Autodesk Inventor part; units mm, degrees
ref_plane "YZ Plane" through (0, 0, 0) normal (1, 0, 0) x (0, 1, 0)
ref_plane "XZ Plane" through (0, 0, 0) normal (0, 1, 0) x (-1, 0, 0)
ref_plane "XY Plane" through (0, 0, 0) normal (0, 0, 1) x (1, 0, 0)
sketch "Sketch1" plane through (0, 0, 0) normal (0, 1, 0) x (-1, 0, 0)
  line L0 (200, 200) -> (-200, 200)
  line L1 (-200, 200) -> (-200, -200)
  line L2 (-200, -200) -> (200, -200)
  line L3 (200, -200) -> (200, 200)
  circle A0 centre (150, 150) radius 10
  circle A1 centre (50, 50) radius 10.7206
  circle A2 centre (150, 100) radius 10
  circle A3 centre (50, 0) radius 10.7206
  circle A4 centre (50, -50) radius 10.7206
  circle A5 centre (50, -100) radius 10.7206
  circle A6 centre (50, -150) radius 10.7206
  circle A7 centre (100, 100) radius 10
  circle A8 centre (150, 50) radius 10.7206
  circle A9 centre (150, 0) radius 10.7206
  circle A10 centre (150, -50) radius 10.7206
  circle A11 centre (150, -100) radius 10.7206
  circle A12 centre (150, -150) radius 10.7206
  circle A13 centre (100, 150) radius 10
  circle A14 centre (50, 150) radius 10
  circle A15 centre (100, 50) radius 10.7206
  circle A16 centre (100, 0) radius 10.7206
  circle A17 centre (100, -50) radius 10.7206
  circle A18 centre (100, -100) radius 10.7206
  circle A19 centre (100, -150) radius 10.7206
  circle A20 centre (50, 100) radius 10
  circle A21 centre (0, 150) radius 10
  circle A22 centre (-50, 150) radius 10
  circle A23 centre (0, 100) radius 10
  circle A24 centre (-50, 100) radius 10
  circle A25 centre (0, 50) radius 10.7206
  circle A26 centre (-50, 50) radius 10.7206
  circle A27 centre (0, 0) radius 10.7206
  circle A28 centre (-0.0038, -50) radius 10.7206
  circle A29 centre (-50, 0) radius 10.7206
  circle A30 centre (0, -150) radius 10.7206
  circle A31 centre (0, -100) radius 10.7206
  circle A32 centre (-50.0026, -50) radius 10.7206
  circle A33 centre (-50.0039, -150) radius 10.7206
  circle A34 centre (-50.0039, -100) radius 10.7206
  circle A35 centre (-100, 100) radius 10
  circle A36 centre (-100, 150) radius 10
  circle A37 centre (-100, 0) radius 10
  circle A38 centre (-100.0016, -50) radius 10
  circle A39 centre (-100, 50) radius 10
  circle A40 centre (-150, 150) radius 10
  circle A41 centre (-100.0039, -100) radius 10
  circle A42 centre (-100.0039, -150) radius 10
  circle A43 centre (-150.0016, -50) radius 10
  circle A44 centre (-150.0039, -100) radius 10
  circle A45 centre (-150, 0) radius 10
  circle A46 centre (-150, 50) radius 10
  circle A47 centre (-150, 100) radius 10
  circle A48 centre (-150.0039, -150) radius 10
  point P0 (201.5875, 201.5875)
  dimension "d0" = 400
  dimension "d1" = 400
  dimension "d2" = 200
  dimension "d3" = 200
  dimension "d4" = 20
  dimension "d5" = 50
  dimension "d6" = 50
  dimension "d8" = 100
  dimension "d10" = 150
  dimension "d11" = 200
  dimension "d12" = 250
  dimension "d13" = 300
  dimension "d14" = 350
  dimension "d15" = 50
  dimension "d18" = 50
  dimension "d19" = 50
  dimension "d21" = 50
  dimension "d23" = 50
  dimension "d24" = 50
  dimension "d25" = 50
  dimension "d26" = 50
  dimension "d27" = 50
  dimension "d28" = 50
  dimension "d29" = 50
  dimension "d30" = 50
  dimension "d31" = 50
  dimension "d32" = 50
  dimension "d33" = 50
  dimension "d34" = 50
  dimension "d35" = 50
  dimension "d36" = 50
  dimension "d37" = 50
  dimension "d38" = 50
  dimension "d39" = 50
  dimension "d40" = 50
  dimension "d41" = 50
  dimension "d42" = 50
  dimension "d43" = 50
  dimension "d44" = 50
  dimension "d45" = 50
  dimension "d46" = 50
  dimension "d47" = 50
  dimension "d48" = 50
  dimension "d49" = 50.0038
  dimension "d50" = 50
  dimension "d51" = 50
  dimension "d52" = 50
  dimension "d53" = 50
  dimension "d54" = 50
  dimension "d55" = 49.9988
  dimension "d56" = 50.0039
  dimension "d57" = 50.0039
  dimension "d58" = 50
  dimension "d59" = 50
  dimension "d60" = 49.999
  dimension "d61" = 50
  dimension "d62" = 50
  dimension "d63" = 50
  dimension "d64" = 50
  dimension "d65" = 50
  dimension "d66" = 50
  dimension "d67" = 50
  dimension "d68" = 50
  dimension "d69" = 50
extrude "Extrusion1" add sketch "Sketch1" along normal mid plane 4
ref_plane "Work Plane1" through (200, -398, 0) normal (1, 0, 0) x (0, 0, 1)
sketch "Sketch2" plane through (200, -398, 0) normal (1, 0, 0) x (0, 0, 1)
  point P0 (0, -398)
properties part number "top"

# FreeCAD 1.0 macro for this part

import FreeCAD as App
import Part
import Sketcher

V = App.Vector


def add_polygon(sketch, points):
    """Adds a closed chain of lines whose ends are joined by coincident constraints."""
    first, n = sketch.GeometryCount, len(points)
    for a, b in zip(points, points[1:] + points[:1]):
        sketch.addGeometry(Part.LineSegment(App.Vector(*a, 0), App.Vector(*b, 0)), False)
    for i in range(n):
        sketch.addConstraint(Sketcher.Constraint("Coincident", first + i, 2, first + (i + 1) % n, 1))

doc = App.newDocument("Part")
params = doc.addObject("Spreadsheet::Sheet", "Params")
for row, (alias, value) in enumerate([
    ("sketch1_diameter", "20 mm"),
    ("sketch1_width", "400 mm"),
    ("pad1_length", "4 mm"),
], start=1):
    params.set(f"A{row}", alias)
    params.set(f"B{row}", "=" + value)
    params.setAlias(f"B{row}", alias)

body = doc.addObject("PartDesign::Body", "Body")

# Sketch on XZ plane
sketch1 = doc.addObject("Sketcher::SketchObject", "Sketch")
body.addObject(sketch1)
sketch1.AttachmentSupport = (doc.XZ_Plane, [""])
sketch1.MapMode = "FlatFace"
add_polygon(sketch1, [(-200, -200), (-200, 200), (200, 200), (200, -200)])  # lines 0-3
sketch1.addGeometry(Part.Circle(V(150, -150, 0), V(0, 0, 1), 10), False)  # 4
sketch1.addGeometry(Part.Circle(V(100, -150, 0), V(0, 0, 1), 10), False)  # 5
sketch1.addGeometry(Part.Circle(V(50, -150, 0), V(0, 0, 1), 11), False)  # 6
sketch1.addGeometry(Part.Circle(V(150, -100, 0), V(0, 0, 1), 10), False)  # 7
sketch1.addGeometry(Part.Circle(V(100, -100, 0), V(0, 0, 1), 10), False)  # 8
sketch1.addGeometry(Part.Circle(V(150, -50, 0), V(0, 0, 1), 10), False)  # 9
sketch1.addGeometry(Part.Circle(V(100, -50, 0), V(0, 0, 1), 10), False)  # 10
sketch1.addGeometry(Part.Circle(V(50, -100, 0), V(0, 0, 1), 11), False)  # 11
sketch1.addGeometry(Part.Circle(V(50, -50, 0), V(0, 0, 1), 11), False)  # 12
sketch1.addGeometry(Part.Circle(V(0, -50, 0), V(0, 0, 1), 11), False)  # 13
sketch1.addGeometry(Part.Circle(V(0, -150, 0), V(0, 0, 1), 11), False)  # 14
sketch1.addGeometry(Part.Circle(V(-50, -150, 0), V(0, 0, 1), 11), False)  # 15
sketch1.addGeometry(Part.Circle(V(-100, -150, 0), V(0, 0, 1), 11), False)  # 16
sketch1.addGeometry(Part.Circle(V(-150, -150, 0), V(0, 0, 1), 11), False)  # 17
sketch1.addGeometry(Part.Circle(V(0, -100, 0), V(0, 0, 1), 11), False)  # 18
sketch1.addGeometry(Part.Circle(V(-50, -100, 0), V(0, 0, 1), 11), False)  # 19
sketch1.addGeometry(Part.Circle(V(-50, -50, 0), V(0, 0, 1), 11), False)  # 20
sketch1.addGeometry(Part.Circle(V(-100, -100, 0), V(0, 0, 1), 11), False)  # 21
sketch1.addGeometry(Part.Circle(V(-150, -100, 0), V(0, 0, 1), 11), False)  # 22
sketch1.addGeometry(Part.Circle(V(-100, -50, 0), V(0, 0, 1), 11), False)  # 23
sketch1.addGeometry(Part.Circle(V(-150, -50, 0), V(0, 0, 1), 11), False)  # 24
sketch1.addGeometry(Part.Circle(V(150, 0, 0), V(0, 0, 1), 10), False)  # 25
sketch1.addGeometry(Part.Circle(V(150, 50, 0), V(0, 0, 1), 10), False)  # 26
sketch1.addGeometry(Part.Circle(V(100, 0, 0), V(0, 0, 1), 10), False)  # 27
sketch1.addGeometry(Part.Circle(V(50, 0, 0), V(0, 0, 1), 11), False)  # 28
sketch1.addGeometry(Part.Circle(V(100, 50, 0), V(0, 0, 1), 10), False)  # 29
sketch1.addGeometry(Part.Circle(V(50, 50, 0), V(0, 0, 1), 11), False)  # 30
sketch1.addGeometry(Part.Circle(V(150, 100, 0), V(0, 0, 1), 10), False)  # 31
sketch1.addGeometry(Part.Circle(V(150, 150, 0), V(0, 0, 1), 10), False)  # 32
sketch1.addGeometry(Part.Circle(V(100, 100, 0), V(0, 0, 1), 10), False)  # 33
sketch1.addGeometry(Part.Circle(V(50, 100, 0), V(0, 0, 1), 10), False)  # 34
sketch1.addGeometry(Part.Circle(V(100, 150, 0), V(0, 0, 1), 10), False)  # 35
sketch1.addGeometry(Part.Circle(V(50, 150, 0), V(0, 0, 1), 10), False)  # 36
sketch1.addGeometry(Part.Circle(V(0, 0, 0), V(0, 0, 1), 11), False)  # 37
sketch1.addGeometry(Part.Circle(V(-50, 0, 0), V(0, 0, 1), 11), False)  # 38
sketch1.addGeometry(Part.Circle(V(0, 50, 0), V(0, 0, 1), 11), False)  # 39
sketch1.addGeometry(Part.Circle(V(-50, 50, 0), V(0, 0, 1), 11), False)  # 40
sketch1.addGeometry(Part.Circle(V(-100, 0, 0), V(0, 0, 1), 11), False)  # 41
sketch1.addGeometry(Part.Circle(V(-150, 0, 0), V(0, 0, 1), 11), False)  # 42
sketch1.addGeometry(Part.Circle(V(-100, 50, 0), V(0, 0, 1), 11), False)  # 43
sketch1.addGeometry(Part.Circle(V(-150, 50, 0), V(0, 0, 1), 11), False)  # 44
sketch1.addGeometry(Part.Circle(V(0, 100, 0), V(0, 0, 1), 10), False)  # 45
sketch1.addGeometry(Part.Circle(V(-50, 100, 0), V(0, 0, 1), 10), False)  # 46
sketch1.addGeometry(Part.Circle(V(0, 150, 0), V(0, 0, 1), 10), False)  # 47
sketch1.addGeometry(Part.Circle(V(-50, 150, 0), V(0, 0, 1), 10), False)  # 48
sketch1.addGeometry(Part.Circle(V(-100, 100, 0), V(0, 0, 1), 10), False)  # 49
sketch1.addGeometry(Part.Circle(V(-150, 100, 0), V(0, 0, 1), 10), False)  # 50
sketch1.addGeometry(Part.Circle(V(-100, 150, 0), V(0, 0, 1), 10), False)  # 51
sketch1.addGeometry(Part.Circle(V(-150, 150, 0), V(0, 0, 1), 10), False)  # 52
sketch1.addConstraint(Sketcher.Constraint("Vertical", 0))
sketch1.addConstraint(Sketcher.Constraint("Horizontal", 1))
sketch1.addConstraint(Sketcher.Constraint("Vertical", 2))
sketch1.addConstraint(Sketcher.Constraint("Horizontal", 3))
sketch1.addConstraint(Sketcher.Constraint("Coincident", 37, 3, -1, 1))
sketch1.addConstraint(Sketcher.Constraint("Equal", 4, 5))
sketch1.addConstraint(Sketcher.Constraint("Equal", 5, 7))
sketch1.addConstraint(Sketcher.Constraint("Equal", 7, 8))
sketch1.addConstraint(Sketcher.Constraint("Equal", 8, 9))
sketch1.addConstraint(Sketcher.Constraint("Equal", 9, 10))
sketch1.addConstraint(Sketcher.Constraint("Equal", 6, 11))
sketch1.addConstraint(Sketcher.Constraint("Equal", 11, 12))
sketch1.addConstraint(Sketcher.Constraint("Equal", 12, 13))
sketch1.addConstraint(Sketcher.Constraint("Equal", 13, 14))
sketch1.addConstraint(Sketcher.Constraint("Equal", 14, 15))
sketch1.addConstraint(Sketcher.Constraint("Equal", 15, 16))
sketch1.addConstraint(Sketcher.Constraint("Equal", 16, 17))
sketch1.addConstraint(Sketcher.Constraint("Equal", 17, 18))
sketch1.addConstraint(Sketcher.Constraint("Equal", 18, 19))
sketch1.addConstraint(Sketcher.Constraint("Equal", 19, 20))
sketch1.addConstraint(Sketcher.Constraint("Equal", 20, 21))
sketch1.addConstraint(Sketcher.Constraint("Equal", 21, 22))
sketch1.addConstraint(Sketcher.Constraint("Equal", 22, 23))
sketch1.addConstraint(Sketcher.Constraint("Equal", 23, 24))
sketch1.addConstraint(Sketcher.Constraint("Equal", 10, 25))
sketch1.addConstraint(Sketcher.Constraint("Equal", 25, 26))
sketch1.addConstraint(Sketcher.Constraint("Equal", 26, 27))
sketch1.addConstraint(Sketcher.Constraint("Equal", 24, 28))
sketch1.addConstraint(Sketcher.Constraint("Equal", 27, 29))
sketch1.addConstraint(Sketcher.Constraint("Equal", 28, 30))
sketch1.addConstraint(Sketcher.Constraint("Equal", 29, 31))
sketch1.addConstraint(Sketcher.Constraint("Equal", 31, 32))
sketch1.addConstraint(Sketcher.Constraint("Equal", 32, 33))
sketch1.addConstraint(Sketcher.Constraint("Equal", 33, 34))
sketch1.addConstraint(Sketcher.Constraint("Equal", 34, 35))
sketch1.addConstraint(Sketcher.Constraint("Equal", 35, 36))
sketch1.addConstraint(Sketcher.Constraint("Equal", 30, 37))
sketch1.addConstraint(Sketcher.Constraint("Equal", 37, 38))
sketch1.addConstraint(Sketcher.Constraint("Equal", 38, 39))
sketch1.addConstraint(Sketcher.Constraint("Equal", 39, 40))
sketch1.addConstraint(Sketcher.Constraint("Equal", 40, 41))
sketch1.addConstraint(Sketcher.Constraint("Equal", 41, 42))
sketch1.addConstraint(Sketcher.Constraint("Equal", 42, 43))
sketch1.addConstraint(Sketcher.Constraint("Equal", 43, 44))
sketch1.addConstraint(Sketcher.Constraint("Equal", 36, 45))
sketch1.addConstraint(Sketcher.Constraint("Equal", 45, 46))
sketch1.addConstraint(Sketcher.Constraint("Equal", 46, 47))
sketch1.addConstraint(Sketcher.Constraint("Equal", 47, 48))
sketch1.addConstraint(Sketcher.Constraint("Equal", 48, 49))
sketch1.addConstraint(Sketcher.Constraint("Equal", 49, 50))
sketch1.addConstraint(Sketcher.Constraint("Equal", 50, 51))
sketch1.addConstraint(Sketcher.Constraint("Equal", 51, 52))
sketch1.addConstraint(Sketcher.Constraint("Symmetric", 24, 3, 26, 3, -1, 1))
sketch1.addConstraint(Sketcher.Constraint("Symmetric", 23, 3, 29, 3, -1, 1))
sketch1.addConstraint(Sketcher.Constraint("Symmetric", 20, 3, 30, 3, -1, 1))
sketch1.addConstraint(Sketcher.Constraint("Symmetric", 22, 3, 31, 3, -1, 1))
sketch1.addConstraint(Sketcher.Constraint("Symmetric", 17, 3, 32, 3, -1, 1))
sketch1.addConstraint(Sketcher.Constraint("Symmetric", 21, 3, 33, 3, -1, 1))
sketch1.addConstraint(Sketcher.Constraint("Symmetric", 19, 3, 34, 3, -1, 1))
sketch1.addConstraint(Sketcher.Constraint("Symmetric", 16, 3, 35, 3, -1, 1))
sketch1.addConstraint(Sketcher.Constraint("Symmetric", 15, 3, 36, 3, -1, 1))
sketch1.addConstraint(Sketcher.Constraint("Symmetric", 28, 3, 38, 3, -1, 1))
sketch1.addConstraint(Sketcher.Constraint("Symmetric", 27, 3, 41, 3, -1, 1))
sketch1.addConstraint(Sketcher.Constraint("Symmetric", 25, 3, 42, 3, -1, 1))
sketch1.addConstraint(Sketcher.Constraint("Symmetric", 18, 3, 45, 3, -1, 1))
sketch1.addConstraint(Sketcher.Constraint("Symmetric", 14, 3, 47, 3, -1, 1))
sketch1.addConstraint(Sketcher.Constraint("Symmetric", 0, 2, 2, 2, -1, 1))
sketch1.addConstraint(Sketcher.Constraint("Symmetric", 30, 3, 40, 3, -2))
sketch1.addConstraint(Sketcher.Constraint("Symmetric", 29, 3, 43, 3, -2))
sketch1.addConstraint(Sketcher.Constraint("Symmetric", 26, 3, 44, 3, -2))
sketch1.addConstraint(Sketcher.Constraint("Symmetric", 34, 3, 46, 3, -2))
sketch1.addConstraint(Sketcher.Constraint("Symmetric", 36, 3, 48, 3, -2))
sketch1.addConstraint(Sketcher.Constraint("Symmetric", 33, 3, 49, 3, -2))
sketch1.addConstraint(Sketcher.Constraint("Symmetric", 31, 3, 50, 3, -2))
sketch1.addConstraint(Sketcher.Constraint("Symmetric", 35, 3, 51, 3, -2))
sketch1.addConstraint(Sketcher.Constraint("Symmetric", 32, 3, 52, 3, -2))
sketch1.addConstraint(Sketcher.Constraint("PointOnObject", 14, 3, -2))
sketch1.addConstraint(Sketcher.Constraint("PointOnObject", 18, 3, -2))
sketch1.addConstraint(Sketcher.Constraint("PointOnObject", 25, 3, -1))
sketch1.addConstraint(Sketcher.Constraint("PointOnObject", 27, 3, -1))
sketch1.addConstraint(Sketcher.Constraint("PointOnObject", 28, 3, -1))
sketch1.addConstraint(Sketcher.Constraint("PointOnObject", 39, 3, -2))
sketch1.addConstraint(Sketcher.Constraint("Horizontal", 4, 3, 5, 3))
sketch1.addConstraint(Sketcher.Constraint("Horizontal", 5, 3, 6, 3))
sketch1.addConstraint(Sketcher.Constraint("Horizontal", 7, 3, 8, 3))
sketch1.addConstraint(Sketcher.Constraint("Horizontal", 9, 3, 10, 3))
sketch1.addConstraint(Sketcher.Constraint("Horizontal", 8, 3, 11, 3))
sketch1.addConstraint(Sketcher.Constraint("Horizontal", 10, 3, 12, 3))
sketch1.addConstraint(Sketcher.Constraint("Horizontal", 12, 3, 13, 3))
sketch1.addConstraint(Sketcher.Constraint("Horizontal", 6, 3, 14, 3))
sketch1.addConstraint(Sketcher.Constraint("Horizontal", 14, 3, 15, 3))
sketch1.addConstraint(Sketcher.Constraint("Horizontal", 15, 3, 16, 3))
sketch1.addConstraint(Sketcher.Constraint("Horizontal", 16, 3, 17, 3))
sketch1.addConstraint(Sketcher.Constraint("Horizontal", 11, 3, 18, 3))
sketch1.addConstraint(Sketcher.Constraint("Horizontal", 18, 3, 19, 3))
sketch1.addConstraint(Sketcher.Constraint("Horizontal", 13, 3, 20, 3))
sketch1.addConstraint(Sketcher.Constraint("Horizontal", 19, 3, 21, 3))
sketch1.addConstraint(Sketcher.Constraint("Horizontal", 21, 3, 22, 3))
sketch1.addConstraint(Sketcher.Constraint("Horizontal", 20, 3, 23, 3))
sketch1.addConstraint(Sketcher.Constraint("Horizontal", 23, 3, 24, 3))
sketch1.addConstraint(Sketcher.Constraint("Horizontal", 30, 3, 39, 3))
sketch1.addConstraint(Sketcher.Constraint("Vertical", 4, 3, 7, 3))
sketch1.addConstraint(Sketcher.Constraint("Vertical", 5, 3, 8, 3))
sketch1.addConstraint(Sketcher.Constraint("Vertical", 6, 3, 11, 3))
sketch1.addConstraint(Sketcher.Constraint("Vertical", 15, 3, 19, 3))
sketch1.addConstraint(Sketcher.Constraint("Vertical", 19, 3, 20, 3))
sketch1.addConstraint(Sketcher.Constraint("Vertical", 16, 3, 21, 3))
sketch1.addConstraint(Sketcher.Constraint("Vertical", 17, 3, 22, 3))
sketch1.addConstraint(Sketcher.Constraint("Vertical", 21, 3, 23, 3))
sketch1.addConstraint(Sketcher.Constraint("Vertical", 22, 3, 24, 3))
sketch1.addConstraint(Sketcher.Constraint("Vertical", 25, 3, 26, 3))
sketch1.addConstraint(Sketcher.Constraint("Vertical", 27, 3, 29, 3))
sketch1.addConstraint(Sketcher.Constraint("Vertical", 28, 3, 30, 3))
sketch1.addConstraint(Sketcher.Constraint("Equal", 3, 0))
sketch1.addConstraint(Sketcher.Constraint("Diameter", 4, 20.0))
sketch1.addConstraint(Sketcher.Constraint("DistanceX", 1, 1, 1, 2, 400.0))
sketch1.addConstraint(Sketcher.Constraint("DistanceY", 4, 3, -1, 1, 150.0))
sketch1.addConstraint(Sketcher.Constraint("DistanceY", 7, 3, -1, 1, 100.0))
sketch1.addConstraint(Sketcher.Constraint("DistanceY", 9, 3, -1, 1, 50.0))
sketch1.addConstraint(Sketcher.Constraint("DistanceX", 15, 3, -1, 1, 50.0))
sketch1.addConstraint(Sketcher.Constraint("DistanceX", 16, 3, -1, 1, 100.0))
sketch1.addConstraint(Sketcher.Constraint("DistanceX", 17, 3, -1, 1, 150.0))
sketch1.addConstraint(Sketcher.Constraint("DistanceX", 5, 3, 4, 3, 50.0))
sketch1.addConstraint(Sketcher.Constraint("DistanceX", 6, 3, 5, 3, 50.0))
sketch1.addConstraint(Sketcher.Constraint("DistanceX", 10, 3, 9, 3, 50.0))
sketch1.addConstraint(Sketcher.Constraint("DistanceX", 13, 3, 11, 3, 50.0))
sketch1.addConstraint(Sketcher.Constraint("DistanceX", -1, 1, 6, 3, 50.004))
sketch1.addConstraint(Sketcher.Constraint("DistanceX", 12, 3, 10, 3, 49.999))
sketch1.addConstraint(Sketcher.Constraint("Diameter", 6, 21.4412))
sketch1.addConstraint(Sketcher.Constraint("DistanceX", 13, 3, 12, 3, 49.9988))
sketch1.setExpression("Constraints[118]", "Params.sketch1_diameter")
sketch1.setExpression("Constraints[119]", "Params.sketch1_width")
pad1 = doc.addObject("PartDesign::Pad", "Pad")
body.addObject(pad1)
pad1.Profile = sketch1
pad1.setExpression("Length", "Params.pad1_length")
pad1.Midplane = True

doc.recompute()
